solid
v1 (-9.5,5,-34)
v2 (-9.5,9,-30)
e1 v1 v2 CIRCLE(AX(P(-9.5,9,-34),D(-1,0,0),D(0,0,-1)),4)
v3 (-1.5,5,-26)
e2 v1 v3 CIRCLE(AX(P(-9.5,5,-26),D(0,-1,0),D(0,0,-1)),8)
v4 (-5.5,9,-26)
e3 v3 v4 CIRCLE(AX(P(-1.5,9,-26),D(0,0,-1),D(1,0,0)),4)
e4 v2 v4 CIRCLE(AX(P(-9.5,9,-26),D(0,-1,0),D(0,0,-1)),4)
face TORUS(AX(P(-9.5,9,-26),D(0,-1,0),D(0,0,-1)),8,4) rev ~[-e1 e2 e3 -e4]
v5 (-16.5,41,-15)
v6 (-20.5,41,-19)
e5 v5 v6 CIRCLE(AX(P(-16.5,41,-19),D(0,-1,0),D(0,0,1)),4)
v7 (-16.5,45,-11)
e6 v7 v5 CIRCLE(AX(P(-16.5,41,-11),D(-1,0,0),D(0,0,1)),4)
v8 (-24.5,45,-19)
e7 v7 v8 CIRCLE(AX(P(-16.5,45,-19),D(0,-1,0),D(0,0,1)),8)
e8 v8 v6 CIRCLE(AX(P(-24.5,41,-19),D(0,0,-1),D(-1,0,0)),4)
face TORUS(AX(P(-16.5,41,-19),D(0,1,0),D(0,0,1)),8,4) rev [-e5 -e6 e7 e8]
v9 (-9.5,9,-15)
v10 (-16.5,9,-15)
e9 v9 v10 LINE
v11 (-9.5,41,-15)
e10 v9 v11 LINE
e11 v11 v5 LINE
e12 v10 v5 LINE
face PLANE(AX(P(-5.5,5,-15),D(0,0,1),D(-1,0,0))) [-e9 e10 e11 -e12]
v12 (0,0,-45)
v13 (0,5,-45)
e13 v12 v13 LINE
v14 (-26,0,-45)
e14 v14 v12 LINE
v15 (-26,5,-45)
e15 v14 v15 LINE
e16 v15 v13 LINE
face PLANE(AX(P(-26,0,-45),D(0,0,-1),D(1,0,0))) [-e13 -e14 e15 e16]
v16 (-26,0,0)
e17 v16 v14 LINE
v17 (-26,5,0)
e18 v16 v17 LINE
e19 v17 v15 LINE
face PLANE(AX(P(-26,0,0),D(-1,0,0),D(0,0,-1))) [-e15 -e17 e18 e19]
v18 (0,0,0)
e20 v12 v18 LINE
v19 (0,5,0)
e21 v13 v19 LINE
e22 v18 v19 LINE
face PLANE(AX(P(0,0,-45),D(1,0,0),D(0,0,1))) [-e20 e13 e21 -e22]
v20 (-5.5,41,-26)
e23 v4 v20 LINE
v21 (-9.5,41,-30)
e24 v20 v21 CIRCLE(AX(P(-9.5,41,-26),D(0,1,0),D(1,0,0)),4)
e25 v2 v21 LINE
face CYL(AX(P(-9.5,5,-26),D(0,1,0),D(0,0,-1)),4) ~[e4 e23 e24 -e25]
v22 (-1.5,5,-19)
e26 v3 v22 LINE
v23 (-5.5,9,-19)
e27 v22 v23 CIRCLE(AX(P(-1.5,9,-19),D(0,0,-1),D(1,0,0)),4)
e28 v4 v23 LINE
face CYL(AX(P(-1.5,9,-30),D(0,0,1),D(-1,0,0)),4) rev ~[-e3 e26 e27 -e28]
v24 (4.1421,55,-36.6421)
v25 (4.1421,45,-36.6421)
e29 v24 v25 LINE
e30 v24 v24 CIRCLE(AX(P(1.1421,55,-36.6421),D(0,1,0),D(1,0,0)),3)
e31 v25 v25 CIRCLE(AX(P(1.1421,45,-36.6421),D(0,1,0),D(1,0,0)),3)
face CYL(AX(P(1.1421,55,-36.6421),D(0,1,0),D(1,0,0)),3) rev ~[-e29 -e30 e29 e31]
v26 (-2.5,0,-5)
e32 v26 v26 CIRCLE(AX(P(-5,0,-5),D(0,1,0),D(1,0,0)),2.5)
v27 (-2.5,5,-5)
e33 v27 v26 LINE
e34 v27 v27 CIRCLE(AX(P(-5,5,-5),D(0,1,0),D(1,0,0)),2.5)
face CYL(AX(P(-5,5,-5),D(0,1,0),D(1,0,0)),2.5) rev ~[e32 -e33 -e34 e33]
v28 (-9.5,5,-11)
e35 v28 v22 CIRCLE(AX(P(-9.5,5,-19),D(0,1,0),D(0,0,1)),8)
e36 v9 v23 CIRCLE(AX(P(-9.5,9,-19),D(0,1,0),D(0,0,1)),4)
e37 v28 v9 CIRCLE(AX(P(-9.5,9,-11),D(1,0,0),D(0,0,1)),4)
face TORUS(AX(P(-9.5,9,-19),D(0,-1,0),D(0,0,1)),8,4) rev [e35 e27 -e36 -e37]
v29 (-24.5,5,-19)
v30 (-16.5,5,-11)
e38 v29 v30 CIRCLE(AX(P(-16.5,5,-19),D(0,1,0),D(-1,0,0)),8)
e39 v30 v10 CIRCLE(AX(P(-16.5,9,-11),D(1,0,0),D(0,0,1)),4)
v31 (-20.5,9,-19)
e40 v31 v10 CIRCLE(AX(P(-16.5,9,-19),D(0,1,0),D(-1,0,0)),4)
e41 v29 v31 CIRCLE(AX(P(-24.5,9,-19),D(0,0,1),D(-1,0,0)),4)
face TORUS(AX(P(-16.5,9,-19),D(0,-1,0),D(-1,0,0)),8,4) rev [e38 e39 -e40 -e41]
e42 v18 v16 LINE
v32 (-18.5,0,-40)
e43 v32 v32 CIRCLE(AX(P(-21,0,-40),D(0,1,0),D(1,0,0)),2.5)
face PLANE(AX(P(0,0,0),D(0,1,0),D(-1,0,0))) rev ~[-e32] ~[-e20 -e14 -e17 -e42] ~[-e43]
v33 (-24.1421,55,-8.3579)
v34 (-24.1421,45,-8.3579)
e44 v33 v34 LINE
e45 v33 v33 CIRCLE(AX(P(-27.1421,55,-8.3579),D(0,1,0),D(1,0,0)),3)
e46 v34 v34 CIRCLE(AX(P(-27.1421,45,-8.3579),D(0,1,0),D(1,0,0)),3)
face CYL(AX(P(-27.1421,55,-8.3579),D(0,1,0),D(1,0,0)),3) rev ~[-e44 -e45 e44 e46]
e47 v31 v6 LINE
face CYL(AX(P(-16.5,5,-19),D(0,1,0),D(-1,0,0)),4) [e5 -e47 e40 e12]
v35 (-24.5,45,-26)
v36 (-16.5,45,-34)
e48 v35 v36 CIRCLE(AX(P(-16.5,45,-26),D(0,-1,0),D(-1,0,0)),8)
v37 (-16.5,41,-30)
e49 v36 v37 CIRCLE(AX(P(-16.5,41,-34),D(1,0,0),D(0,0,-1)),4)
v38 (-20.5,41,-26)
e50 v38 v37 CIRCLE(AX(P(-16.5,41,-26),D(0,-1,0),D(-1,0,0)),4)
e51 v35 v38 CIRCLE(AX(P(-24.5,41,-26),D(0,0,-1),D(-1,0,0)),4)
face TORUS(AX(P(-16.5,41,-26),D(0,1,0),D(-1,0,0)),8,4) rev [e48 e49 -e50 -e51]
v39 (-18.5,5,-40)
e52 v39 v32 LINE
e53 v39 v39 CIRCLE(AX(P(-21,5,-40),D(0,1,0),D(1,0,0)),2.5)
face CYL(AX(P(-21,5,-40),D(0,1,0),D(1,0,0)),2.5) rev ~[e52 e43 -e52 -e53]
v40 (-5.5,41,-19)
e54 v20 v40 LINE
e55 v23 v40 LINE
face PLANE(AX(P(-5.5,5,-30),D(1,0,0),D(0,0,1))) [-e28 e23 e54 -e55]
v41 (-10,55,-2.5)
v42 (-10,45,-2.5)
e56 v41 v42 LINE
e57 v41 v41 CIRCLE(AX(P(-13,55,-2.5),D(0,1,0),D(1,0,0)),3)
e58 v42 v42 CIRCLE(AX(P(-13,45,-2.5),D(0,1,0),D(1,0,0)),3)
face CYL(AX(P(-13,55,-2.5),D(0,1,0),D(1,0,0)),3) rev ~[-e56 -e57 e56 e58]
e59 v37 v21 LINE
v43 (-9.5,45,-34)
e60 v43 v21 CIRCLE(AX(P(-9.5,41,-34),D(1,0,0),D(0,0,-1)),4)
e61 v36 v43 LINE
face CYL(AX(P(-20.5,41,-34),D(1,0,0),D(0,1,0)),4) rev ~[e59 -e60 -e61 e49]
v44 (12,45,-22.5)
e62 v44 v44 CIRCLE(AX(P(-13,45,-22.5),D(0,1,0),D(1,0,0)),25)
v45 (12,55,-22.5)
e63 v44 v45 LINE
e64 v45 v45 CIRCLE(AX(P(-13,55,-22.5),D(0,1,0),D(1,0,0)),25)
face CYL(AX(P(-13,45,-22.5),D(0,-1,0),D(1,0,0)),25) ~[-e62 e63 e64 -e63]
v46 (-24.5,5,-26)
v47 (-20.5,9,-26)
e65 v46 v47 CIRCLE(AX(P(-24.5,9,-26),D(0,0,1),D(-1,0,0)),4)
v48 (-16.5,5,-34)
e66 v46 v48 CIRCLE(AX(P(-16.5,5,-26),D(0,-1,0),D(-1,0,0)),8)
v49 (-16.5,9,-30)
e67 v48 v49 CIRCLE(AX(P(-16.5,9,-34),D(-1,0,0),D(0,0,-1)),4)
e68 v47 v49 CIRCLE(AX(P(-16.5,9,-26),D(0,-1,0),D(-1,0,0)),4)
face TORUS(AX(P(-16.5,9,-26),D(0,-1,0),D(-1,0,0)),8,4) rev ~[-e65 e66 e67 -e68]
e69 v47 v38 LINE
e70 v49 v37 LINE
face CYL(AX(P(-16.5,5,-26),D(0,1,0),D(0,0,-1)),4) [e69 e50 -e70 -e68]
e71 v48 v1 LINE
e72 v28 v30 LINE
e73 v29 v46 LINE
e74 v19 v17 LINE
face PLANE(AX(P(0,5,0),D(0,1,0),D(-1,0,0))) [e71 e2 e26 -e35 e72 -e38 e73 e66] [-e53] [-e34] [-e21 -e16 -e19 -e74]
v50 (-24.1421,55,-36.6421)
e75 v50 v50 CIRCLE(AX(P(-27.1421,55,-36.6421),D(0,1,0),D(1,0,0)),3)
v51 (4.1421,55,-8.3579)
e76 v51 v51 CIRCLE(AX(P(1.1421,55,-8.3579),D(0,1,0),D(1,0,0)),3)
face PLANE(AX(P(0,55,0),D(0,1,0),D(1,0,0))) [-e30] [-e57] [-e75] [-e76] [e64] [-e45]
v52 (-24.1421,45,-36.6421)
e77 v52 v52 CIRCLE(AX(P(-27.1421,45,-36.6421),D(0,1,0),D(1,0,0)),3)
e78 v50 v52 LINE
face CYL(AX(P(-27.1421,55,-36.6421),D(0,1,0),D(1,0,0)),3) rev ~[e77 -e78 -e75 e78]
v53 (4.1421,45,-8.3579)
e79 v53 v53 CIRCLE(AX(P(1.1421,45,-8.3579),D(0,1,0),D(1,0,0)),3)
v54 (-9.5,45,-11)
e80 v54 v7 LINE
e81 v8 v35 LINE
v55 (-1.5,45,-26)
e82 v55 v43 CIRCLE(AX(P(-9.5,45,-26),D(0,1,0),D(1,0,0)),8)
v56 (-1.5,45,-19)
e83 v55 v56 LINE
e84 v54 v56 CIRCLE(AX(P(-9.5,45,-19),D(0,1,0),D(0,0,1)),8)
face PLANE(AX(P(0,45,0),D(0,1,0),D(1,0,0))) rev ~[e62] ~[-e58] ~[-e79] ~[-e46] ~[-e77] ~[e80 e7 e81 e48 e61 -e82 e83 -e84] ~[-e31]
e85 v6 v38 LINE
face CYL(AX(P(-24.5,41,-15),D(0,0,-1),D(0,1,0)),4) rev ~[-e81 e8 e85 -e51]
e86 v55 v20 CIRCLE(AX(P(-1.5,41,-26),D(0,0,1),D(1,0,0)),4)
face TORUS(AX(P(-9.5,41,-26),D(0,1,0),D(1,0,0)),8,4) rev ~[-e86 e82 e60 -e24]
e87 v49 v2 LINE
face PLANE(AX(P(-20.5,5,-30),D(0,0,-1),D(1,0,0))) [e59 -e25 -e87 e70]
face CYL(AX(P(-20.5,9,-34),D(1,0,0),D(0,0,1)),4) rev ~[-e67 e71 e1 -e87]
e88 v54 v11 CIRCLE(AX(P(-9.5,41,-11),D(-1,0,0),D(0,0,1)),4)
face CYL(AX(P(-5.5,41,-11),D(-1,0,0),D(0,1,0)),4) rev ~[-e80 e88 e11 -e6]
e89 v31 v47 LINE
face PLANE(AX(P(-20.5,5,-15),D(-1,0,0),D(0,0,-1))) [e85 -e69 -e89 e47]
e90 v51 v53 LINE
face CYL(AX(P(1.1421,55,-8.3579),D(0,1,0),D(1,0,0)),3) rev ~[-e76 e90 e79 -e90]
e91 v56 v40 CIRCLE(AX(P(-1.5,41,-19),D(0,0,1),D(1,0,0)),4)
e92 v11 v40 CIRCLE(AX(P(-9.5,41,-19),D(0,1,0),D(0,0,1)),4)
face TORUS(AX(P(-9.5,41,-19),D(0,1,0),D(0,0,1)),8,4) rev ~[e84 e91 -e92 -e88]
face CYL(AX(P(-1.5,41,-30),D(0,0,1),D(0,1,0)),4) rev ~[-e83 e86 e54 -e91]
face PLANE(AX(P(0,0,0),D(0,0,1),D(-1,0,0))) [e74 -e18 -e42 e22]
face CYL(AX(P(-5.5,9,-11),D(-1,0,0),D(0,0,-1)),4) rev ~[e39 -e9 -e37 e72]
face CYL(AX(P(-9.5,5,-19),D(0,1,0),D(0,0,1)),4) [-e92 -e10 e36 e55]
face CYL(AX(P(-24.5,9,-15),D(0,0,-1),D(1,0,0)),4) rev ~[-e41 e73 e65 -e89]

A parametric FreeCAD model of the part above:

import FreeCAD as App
import Part
import Sketcher


def edges_at(feature, points):
    """Names of the edges that pass closest to the given points."""
    edges = feature.Shape.Edges
    near = lambda p: min(range(len(edges)), key=lambda i: edges[i].distToShape(Part.Vertex(*p))[0])
    return sorted({f"Edge{near(p) + 1}" for p in points})


def add_polygon(sketch, points):
    """Adds a closed chain of lines whose ends are joined by coincident constraints."""
    first, n = sketch.GeometryCount, len(points)
    for a, b in zip(points, points[1:] + points[:1]):
        sketch.addGeometry(Part.LineSegment(App.Vector(*a, 0), App.Vector(*b, 0)), False)
    for i in range(n):
        sketch.addConstraint(Sketcher.Constraint("Coincident", first + i, 2, first + (i + 1) % n, 1))

doc = App.newDocument("Part")
body = doc.addObject("PartDesign::Body", "Body")

sketch1 = doc.addObject("Sketcher::SketchObject", "Sketch")
body.addObject(sketch1)
sketch1.AttachmentSupport = (doc.XZ_Plane, [""])
sketch1.MapMode = "FlatFace"
add_polygon(sketch1, [(-26, 0), (0, 0), (0, -45), (-26, -45)])
sketch1.addConstraint([
    Sketcher.Constraint("Horizontal", 0),
    Sketcher.Constraint("Vertical", 1),
    Sketcher.Constraint("Horizontal", 2),
    Sketcher.Constraint("Vertical", 3),
    Sketcher.Constraint("Coincident", 0, 2, -1, 1),
    Sketcher.Constraint("DistanceX", 0, 1, 0, 2, 26.0),
    Sketcher.Constraint("DistanceY", 1, 2, 1, 1, 45.0),
])
pad1 = doc.addObject("PartDesign::Pad", "Pad")
body.addObject(pad1)
pad1.Profile = sketch1
pad1.Length = 5
pad1.Reversed = True

sketch2 = doc.addObject("Sketcher::SketchObject", "Sketch001")
body.addObject(sketch2)
sketch2.AttachmentSupport = (doc.XZ_Plane, [""])
sketch2.MapMode = "FlatFace"
sketch2.AttachmentOffset = App.Placement(App.Vector(0, 0, -5), App.Rotation())
sketch2.addGeometry([
    Part.Circle(App.Vector(-21, -40, 0), App.Vector(0, 0, 1), 2.5),
    Part.Circle(App.Vector(-5, -5, 0), App.Vector(0, 0, 1), 2.5),
], False)
sketch2.addConstraint([
    Sketcher.Constraint("Equal", 0, 1),
    Sketcher.Constraint("Diameter", 0, 5.0),
    Sketcher.Constraint("DistanceX", 1, 3, -1, 1, 5.0),
    Sketcher.Constraint("DistanceY", 1, 3, -1, 1, 5.0),
    Sketcher.Constraint("DistanceX", 0, 3, -1, 1, 21.0),
    Sketcher.Constraint("DistanceY", 0, 3, -1, 1, 40.0),
])
pocket1 = doc.addObject("PartDesign::Pocket", "Pocket")
body.addObject(pocket1)
pocket1.Profile = sketch2
pocket1.Length = 5
pocket1.Reversed = True

sketch3 = doc.addObject("Sketcher::SketchObject", "Sketch002")
body.addObject(sketch3)
sketch3.AttachmentSupport = (doc.XZ_Plane, [""])
sketch3.MapMode = "FlatFace"
sketch3.AttachmentOffset = App.Placement(App.Vector(0, 0, -5), App.Rotation())
add_polygon(sketch3, [(-20, -15), (-6, -15), (-6, -30), (-20, -30)])
sketch3.addConstraint([
    Sketcher.Constraint("Horizontal", 0),
    Sketcher.Constraint("Vertical", 1),
    Sketcher.Constraint("Horizontal", 2),
    Sketcher.Constraint("Vertical", 3),
    Sketcher.Constraint("Equal", 2, 1),
    Sketcher.Constraint("DistanceX", 0, 1, 0, 2, 15.0),
    Sketcher.Constraint("DistanceY", 0, 2, -1, 1, 15.0),
    Sketcher.Constraint("DistanceX", 0, 2, -1, 1, 5.5),
])
pad2 = doc.addObject("PartDesign::Pad", "Pad001")
body.addObject(pad2)
pad2.Profile = sketch3
pad2.Length = 40
pad2.Reversed = True

sketch4 = doc.addObject("Sketcher::SketchObject", "Sketch003")
body.addObject(sketch4)
sketch4.AttachmentSupport = (doc.XZ_Plane, [""])
sketch4.MapMode = "FlatFace"
sketch4.AttachmentOffset = App.Placement(App.Vector(0, 0, -45), App.Rotation())
sketch4.addGeometry(Part.Circle(App.Vector(-13, -22, 0), App.Vector(0, 0, 1), 25), False)
sketch4.addConstraint([
    Sketcher.Constraint("Diameter", 0, 50.0),
    Sketcher.Constraint("DistanceX", 0, 3, -1, 1, 13.0),
    Sketcher.Constraint("DistanceY", 0, 3, -1, 1, 22.5),
])
pad3 = doc.addObject("PartDesign::Pad", "Pad002")
body.addObject(pad3)
pad3.Profile = sketch4
pad3.Length = 10
pad3.Reversed = True
doc.recompute()

fillet = doc.addObject("PartDesign::Fillet", "Fillet")
body.addObject(fillet)
fillet.Base = (pad3, edges_at(pad3, [
    (-13, 45, -30),
    (-5.5, 25, -30),
    (-5.5, 45, -22.5),
    (-5.5, 25, -15),
    (-20.5, 25, -30),
    (-20.5, 25, -15),
    (-13, 45, -15),
    (-20.5, 45, -22.5),
    (-20.5, 5, -22.5),
    (-13, 5, -15),
    (-13, 5, -30),
    (-5.5, 5, -22.5),
]))
fillet.Radius = 4

sketch5 = doc.addObject("Sketcher::SketchObject", "Sketch004")
body.addObject(sketch5)
sketch5.AttachmentSupport = (doc.XZ_Plane, [""])
sketch5.MapMode = "FlatFace"
sketch5.AttachmentOffset = App.Placement(App.Vector(0, 0, -55), App.Rotation())
sketch5.addGeometry([
    Part.Circle(App.Vector(-13, -2.5, 0), App.Vector(0, 0, 1), 3),
    Part.Circle(App.Vector(1.1, -36.6, 0), App.Vector(0, 0, 1), 3),
    Part.Circle(App.Vector(-27.1, -36.6, 0), App.Vector(0, 0, 1), 3),
    Part.Circle(App.Vector(-27.1, -8.4, 0), App.Vector(0, 0, 1), 3),
    Part.Circle(App.Vector(1.1, -8.4, 0), App.Vector(0, 0, 1), 3),
], False)
sketch5.addConstraint([
    Sketcher.Constraint("Equal", 0, 1),
    Sketcher.Constraint("Equal", 1, 2),
    Sketcher.Constraint("Equal", 2, 3),
    Sketcher.Constraint("Equal", 3, 4),
    Sketcher.Constraint("Horizontal", 1, 3, 2, 3),
    Sketcher.Constraint("Horizontal", 3, 3, 4, 3),
    Sketcher.Constraint("Vertical", 2, 3, 3, 3),
    Sketcher.Constraint("Vertical", 1, 3, 4, 3),
    Sketcher.Constraint("Diameter", 0, 6.0),
    Sketcher.Constraint("DistanceX", 0, 3, -1, 1, 13.0),
    Sketcher.Constraint("DistanceY", 0, 3, -1, 1, 2.5),
    Sketcher.Constraint("DistanceX", -1, 1, 1, 3, 1.142),
    Sketcher.Constraint("DistanceY", 1, 3, -1, 1, 36.642),
    Sketcher.Constraint("DistanceX", 2, 3, -1, 1, 27.142),
    Sketcher.Constraint("DistanceY", 3, 3, -1, 1, 8.358),
])
pocket2 = doc.addObject("PartDesign::Pocket", "Pocket001")
body.addObject(pocket2)
pocket2.Profile = sketch5
pocket2.Length = 10
pocket2.Reversed = True

doc.recompute()
